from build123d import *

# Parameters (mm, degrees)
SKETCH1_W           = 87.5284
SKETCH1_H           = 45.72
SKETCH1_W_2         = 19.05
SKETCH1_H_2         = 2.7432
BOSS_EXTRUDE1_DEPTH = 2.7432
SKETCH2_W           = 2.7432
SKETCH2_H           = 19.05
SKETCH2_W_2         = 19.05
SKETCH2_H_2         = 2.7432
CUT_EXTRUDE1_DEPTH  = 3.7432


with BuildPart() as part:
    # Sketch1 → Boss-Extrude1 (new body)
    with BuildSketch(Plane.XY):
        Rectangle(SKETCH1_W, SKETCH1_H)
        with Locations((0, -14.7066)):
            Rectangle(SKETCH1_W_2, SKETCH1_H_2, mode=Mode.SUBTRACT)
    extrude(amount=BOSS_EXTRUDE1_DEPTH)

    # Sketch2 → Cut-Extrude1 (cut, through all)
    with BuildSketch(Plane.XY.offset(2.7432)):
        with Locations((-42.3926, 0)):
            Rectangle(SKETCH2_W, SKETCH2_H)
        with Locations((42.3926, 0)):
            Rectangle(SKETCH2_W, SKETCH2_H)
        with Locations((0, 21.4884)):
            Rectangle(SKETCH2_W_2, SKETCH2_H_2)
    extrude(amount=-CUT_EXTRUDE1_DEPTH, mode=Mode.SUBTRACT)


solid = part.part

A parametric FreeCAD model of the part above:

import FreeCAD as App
import Part
import Sketcher

V = App.Vector
Q = App.Units.Quantity

doc = App.newDocument("Part")
body = doc.addObject("PartDesign::Body", "Body")

# Sketch on XY plane
sketch1 = body.newObject("Sketcher::SketchObject", "Sketch")
sketch1.AttachmentSupport = (doc.getObject("XY_Plane"), [""])
sketch1.MapMode = "FlatFace"
sketch1.addGeometry([
    Part.LineSegment(V(-43.8, 22.9, 0), V(-43.8, -22.9, 0)),  # 0
    Part.LineSegment(V(-43.8, -22.9, 0), V(43.8, -22.9, 0)),  # 1
    Part.LineSegment(V(43.8, -22.9, 0), V(43.8, 22.9, 0)),  # 2
    Part.LineSegment(V(43.8, 22.9, 0), V(-43.8, 22.9, 0)),  # 3
    Part.LineSegment(V(9.5, -16.1, 0), V(-9.5, -16.1, 0)),  # 4
    Part.LineSegment(V(-9.5, -16.1, 0), V(-9.5, -13.3, 0)),  # 5
    Part.LineSegment(V(-9.5, -13.3, 0), V(9.5, -13.3, 0)),  # 6
    Part.LineSegment(V(9.5, -13.3, 0), V(9.5, -16.1, 0)),  # 7
], False)
sketch1.addConstraint([
    Sketcher.Constraint("Coincident", 0, 2, 1, 1),
    Sketcher.Constraint("Coincident", 1, 2, 2, 1),
    Sketcher.Constraint("Coincident", 2, 2, 3, 1),
    Sketcher.Constraint("Coincident", 3, 2, 0, 1),
    Sketcher.Constraint("Coincident", 4, 2, 5, 1),
    Sketcher.Constraint("Coincident", 5, 2, 6, 1),
    Sketcher.Constraint("Coincident", 6, 2, 7, 1),
    Sketcher.Constraint("Coincident", 7, 2, 4, 1),
    Sketcher.Constraint("Vertical", 0),
    Sketcher.Constraint("Horizontal", 1),
    Sketcher.Constraint("Vertical", 2),
    Sketcher.Constraint("Horizontal", 3),
    Sketcher.Constraint("Horizontal", 4),
    Sketcher.Constraint("Vertical", 5),
    Sketcher.Constraint("Horizontal", 6),
    Sketcher.Constraint("Vertical", 7),
    Sketcher.Constraint("Symmetric", 0, 2, 2, 2, -1, 1),
    Sketcher.Constraint("DistanceY", 0, 2, 0, 1, Q("1.8 in")),
    Sketcher.Constraint("DistanceX", 4, 2, 4, 1, Q("0.75 in")),
    Sketcher.Constraint("DistanceX", 1, 1, 1, 2, Q("3.446 in")),
    Sketcher.Constraint("DistanceY", 5, 1, 5, 2, Q("0.108 in")),
    Sketcher.Constraint("DistanceX", 4, 2, -1, 1, Q("0.375 in")),
    Sketcher.Constraint("DistanceY", 4, 2, -1, 1, Q("0.633 in")),
])
pad1 = body.newObject("PartDesign::Pad", "Pad")
pad1.Profile = sketch1
pad1.Length = Q("0.108 in")

# Sketch on XY plane
sketch2 = body.newObject("Sketcher::SketchObject", "Sketch001")
sketch2.AttachmentSupport = (doc.getObject("XY_Plane"), [""])
sketch2.MapMode = "FlatFace"
sketch2.AttachmentOffset = App.Placement(V(0, 0, 0.108 * 25.4), App.Rotation())
sketch2.addGeometry([
    Part.LineSegment(V(-43.8, 9.5, 0), V(-43.8, -9.5, 0)),  # 0
    Part.LineSegment(V(-43.8, -9.5, 0), V(-41, -9.5, 0)),  # 1
    Part.LineSegment(V(-41, -9.5, 0), V(-41, 9.5, 0)),  # 2
    Part.LineSegment(V(-41, 9.5, 0), V(-43.8, 9.5, 0)),  # 3
    Part.LineSegment(V(41, 9.5, 0), V(41, -9.5, 0)),  # 4
    Part.LineSegment(V(41, -9.5, 0), V(43.8, -9.5, 0)),  # 5
    Part.LineSegment(V(43.8, -9.5, 0), V(43.8, 9.5, 0)),  # 6
    Part.LineSegment(V(43.8, 9.5, 0), V(41, 9.5, 0)),  # 7
    Part.LineSegment(V(-9.5, 22.9, 0), V(-9.5, 20.1, 0)),  # 8
    Part.LineSegment(V(-9.5, 20.1, 0), V(9.5, 20.1, 0)),  # 9
    Part.LineSegment(V(9.5, 20.1, 0), V(9.5, 22.9, 0)),  # 10
    Part.LineSegment(V(9.5, 22.9, 0), V(-9.5, 22.9, 0)),  # 11
], False)
sketch2.addConstraint([
    Sketcher.Constraint("Coincident", 0, 2, 1, 1),
    Sketcher.Constraint("Coincident", 1, 2, 2, 1),
    Sketcher.Constraint("Coincident", 2, 2, 3, 1),
    Sketcher.Constraint("Coincident", 3, 2, 0, 1),
    Sketcher.Constraint("Coincident", 4, 2, 5, 1),
    Sketcher.Constraint("Coincident", 5, 2, 6, 1),
    Sketcher.Constraint("Coincident", 6, 2, 7, 1),
    Sketcher.Constraint("Coincident", 7, 2, 4, 1),
    Sketcher.Constraint("Coincident", 8, 2, 9, 1),
    Sketcher.Constraint("Coincident", 9, 2, 10, 1),
    Sketcher.Constraint("Coincident", 10, 2, 11, 1),
    Sketcher.Constraint("Coincident", 11, 2, 8, 1),
    Sketcher.Constraint("Vertical", 0),
    Sketcher.Constraint("Horizontal", 1),
    Sketcher.Constraint("Vertical", 2),
    Sketcher.Constraint("Horizontal", 3),
    Sketcher.Constraint("Vertical", 4),
    Sketcher.Constraint("Horizontal", 5),
    Sketcher.Constraint("Vertical", 6),
    Sketcher.Constraint("Horizontal", 7),
    Sketcher.Constraint("Vertical", 8),
    Sketcher.Constraint("Horizontal", 9),
    Sketcher.Constraint("Vertical", 10),
    Sketcher.Constraint("Horizontal", 11),
    Sketcher.Constraint("Symmetric", 2, 2, 4, 2, -1, 1),
    Sketcher.Constraint("Symmetric", 0, 2, 6, 2, -1, 1),
    Sketcher.Constraint("Horizontal", 1, 2, 4, 2),
    Sketcher.Constraint("Equal", 11, 0),
    Sketcher.Constraint("Equal", 7, 8),
    Sketcher.Constraint("DistanceX", 9, 1, 9, 2, Q("0.75 in")),
    Sketcher.Constraint("DistanceY", -1, 1, 10, 2, Q("0.9 in")),
    Sketcher.Constraint("DistanceX", 1, 1, 1, 2, Q("0.108 in")),
    Sketcher.Constraint("DistanceX", 1, 2, 4, 2, Q("3.23 in")),
    Sketcher.Constraint("DistanceX", 2, 2, 8, 2, Q("1.24 in")),
])
pocket1 = body.newObject("PartDesign::Pocket", "Pocket")
pocket1.Profile = sketch2
pocket1.Type = "ThroughAll"

doc.recompute()
